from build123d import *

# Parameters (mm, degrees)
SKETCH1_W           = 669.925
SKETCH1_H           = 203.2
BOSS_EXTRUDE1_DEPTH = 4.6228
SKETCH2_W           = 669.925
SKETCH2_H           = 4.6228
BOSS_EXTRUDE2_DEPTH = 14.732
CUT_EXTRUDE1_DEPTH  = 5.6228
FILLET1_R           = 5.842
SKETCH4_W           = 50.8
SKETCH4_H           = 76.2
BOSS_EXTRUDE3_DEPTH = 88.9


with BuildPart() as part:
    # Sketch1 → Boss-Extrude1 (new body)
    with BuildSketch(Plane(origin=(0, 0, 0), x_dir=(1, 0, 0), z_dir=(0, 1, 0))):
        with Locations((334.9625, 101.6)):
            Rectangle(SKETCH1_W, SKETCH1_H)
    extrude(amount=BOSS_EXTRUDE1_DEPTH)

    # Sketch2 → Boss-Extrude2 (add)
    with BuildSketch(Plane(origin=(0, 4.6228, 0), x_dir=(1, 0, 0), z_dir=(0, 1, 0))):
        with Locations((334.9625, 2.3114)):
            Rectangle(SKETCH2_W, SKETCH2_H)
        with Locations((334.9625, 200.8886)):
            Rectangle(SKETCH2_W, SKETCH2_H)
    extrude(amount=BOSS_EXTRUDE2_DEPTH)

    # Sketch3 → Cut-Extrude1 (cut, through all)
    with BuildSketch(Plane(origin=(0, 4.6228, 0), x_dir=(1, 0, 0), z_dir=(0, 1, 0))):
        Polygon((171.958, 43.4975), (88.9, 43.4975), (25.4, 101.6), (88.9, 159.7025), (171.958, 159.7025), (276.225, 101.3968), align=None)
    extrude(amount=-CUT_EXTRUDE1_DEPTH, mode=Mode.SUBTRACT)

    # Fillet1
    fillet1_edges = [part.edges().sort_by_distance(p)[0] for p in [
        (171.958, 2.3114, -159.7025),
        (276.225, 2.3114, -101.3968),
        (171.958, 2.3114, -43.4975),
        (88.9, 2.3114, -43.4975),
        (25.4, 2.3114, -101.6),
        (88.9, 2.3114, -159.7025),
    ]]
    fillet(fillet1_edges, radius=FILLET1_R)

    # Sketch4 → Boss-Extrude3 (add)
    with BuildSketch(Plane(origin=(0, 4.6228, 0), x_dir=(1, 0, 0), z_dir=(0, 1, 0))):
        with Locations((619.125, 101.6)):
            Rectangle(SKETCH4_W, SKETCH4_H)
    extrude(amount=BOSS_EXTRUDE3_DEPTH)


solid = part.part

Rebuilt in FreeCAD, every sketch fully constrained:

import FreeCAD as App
import Part
import Sketcher
from FreeCAD import Vector
Q = App.Units.Quantity


def edges_at(feature, points):
    """Names of the edges that pass closest to the given points."""
    edges = feature.Shape.Edges
    near = lambda p: min(range(len(edges)), key=lambda i: edges[i].distToShape(Part.Vertex(*p))[0])
    return sorted({f"Edge{near(p) + 1}" for p in points})

doc = App.newDocument("Part")
params = doc.addObject("Spreadsheet::Sheet", "Params")
for row, (alias, value) in enumerate([
    ("sketch1_height", "8 in"),
    ("sketch1_width", "26.375 in"),
    ("pad1_length", "0.182 in"),
    ("sketch2_width", "26.375 in"),
    ("sketch2_height", "0.182 in"),
    ("pad2_length", "0.58 in"),
    ("sketch3_width", "3.27 in"),
    ("fillet_radius", "0.23 in"),
    ("sketch4_width", "2 in"),
    ("sketch4_height", "3 in"),
    ("pad3_length", "3.5 in"),
], start=1):
    params.set(f"A{row}", alias)
    params.set(f"B{row}", "=" + value)
    params.setAlias(f"B{row}", alias)

body = doc.addObject("PartDesign::Body", "Body")

# Sketch on XZ plane
sketch1 = body.newObject("Sketcher::SketchObject", "Sketch")
sketch1.AttachmentSupport = (doc.getObject("XZ_Plane"), [""])
sketch1.MapMode = "FlatFace"
sketch1.addGeometry(Part.LineSegment(Vector(0, -203, 0), Vector(0, 0, 0)), False)
sketch1.addGeometry(Part.LineSegment(Vector(0, 0, 0), Vector(670, 0, 0)), False)
sketch1.addGeometry(Part.LineSegment(Vector(670, 0, 0), Vector(670, -203, 0)), False)
sketch1.addGeometry(Part.LineSegment(Vector(670, -203, 0), Vector(0, -203, 0)), False)
sketch1.addConstraint(Sketcher.Constraint("Coincident", 0, 2, 1, 1))
sketch1.addConstraint(Sketcher.Constraint("Coincident", 1, 2, 2, 1))
sketch1.addConstraint(Sketcher.Constraint("Coincident", 2, 2, 3, 1))
sketch1.addConstraint(Sketcher.Constraint("Coincident", 3, 2, 0, 1))
sketch1.addConstraint(Sketcher.Constraint("Vertical", 0))
sketch1.addConstraint(Sketcher.Constraint("Horizontal", 1))
sketch1.addConstraint(Sketcher.Constraint("Vertical", 2))
sketch1.addConstraint(Sketcher.Constraint("Horizontal", 3))
sketch1.addConstraint(Sketcher.Constraint("Coincident", 0, 2, -1, 1))
sketch1.addConstraint(Sketcher.Constraint("DistanceY", 0, 1, 0, 2, Q("8 in")))
sketch1.addConstraint(Sketcher.Constraint("DistanceX", 1, 1, 1, 2, Q("26.375 in")))
sketch1.setExpression("Constraints[9]", "Params.sketch1_height")
sketch1.setExpression("Constraints[10]", "Params.sketch1_width")
pad1 = body.newObject("PartDesign::Pad", "Pad")
pad1.Profile = sketch1
pad1.setExpression("Length", "Params.pad1_length")
pad1.Reversed = True

# Sketch on XZ plane
sketch2 = body.newObject("Sketcher::SketchObject", "Sketch001")
sketch2.AttachmentSupport = (doc.getObject("XZ_Plane"), [""])
sketch2.MapMode = "FlatFace"
sketch2.AttachmentOffset = App.Placement(Vector(0, 0, -0.182 * 25.4), App.Rotation())
sketch2.addGeometry(Part.LineSegment(Vector(0, -4.6, 0), Vector(0, 0, 0)), False)
sketch2.addGeometry(Part.LineSegment(Vector(0, 0, 0), Vector(669.9, 0, 0)), False)
sketch2.addGeometry(Part.LineSegment(Vector(669.9, 0, 0), Vector(669.9, -4.6, 0)), False)
sketch2.addGeometry(Part.LineSegment(Vector(669.9, -4.6, 0), Vector(0, -4.6, 0)), False)
sketch2.addGeometry(Part.LineSegment(Vector(0, -203.2, 0), Vector(0, -198.6, 0)), False)
sketch2.addGeometry(Part.LineSegment(Vector(0, -198.6, 0), Vector(669.9, -198.6, 0)), False)
sketch2.addGeometry(Part.LineSegment(Vector(669.9, -198.6, 0), Vector(669.9, -203.2, 0)), False)
sketch2.addGeometry(Part.LineSegment(Vector(669.9, -203.2, 0), Vector(0, -203.2, 0)), False)
sketch2.addConstraint(Sketcher.Constraint("Coincident", 0, 2, 1, 1))
sketch2.addConstraint(Sketcher.Constraint("Coincident", 1, 2, 2, 1))
sketch2.addConstraint(Sketcher.Constraint("Coincident", 2, 2, 3, 1))
sketch2.addConstraint(Sketcher.Constraint("Coincident", 3, 2, 0, 1))
sketch2.addConstraint(Sketcher.Constraint("Coincident", 4, 2, 5, 1))
sketch2.addConstraint(Sketcher.Constraint("Coincident", 5, 2, 6, 1))
sketch2.addConstraint(Sketcher.Constraint("Coincident", 6, 2, 7, 1))
sketch2.addConstraint(Sketcher.Constraint("Coincident", 7, 2, 4, 1))
sketch2.addConstraint(Sketcher.Constraint("Vertical", 0))
sketch2.addConstraint(Sketcher.Constraint("Horizontal", 1))
sketch2.addConstraint(Sketcher.Constraint("Vertical", 2))
sketch2.addConstraint(Sketcher.Constraint("Horizontal", 3))
sketch2.addConstraint(Sketcher.Constraint("Vertical", 4))
sketch2.addConstraint(Sketcher.Constraint("Horizontal", 5))
sketch2.addConstraint(Sketcher.Constraint("Vertical", 6))
sketch2.addConstraint(Sketcher.Constraint("Horizontal", 7))
sketch2.addConstraint(Sketcher.Constraint("Coincident", 0, 2, -1, 1))
sketch2.addConstraint(Sketcher.Constraint("PointOnObject", 4, 2, -2))
sketch2.addConstraint(Sketcher.Constraint("Vertical", 2, 2, 5, 2))
sketch2.addConstraint(Sketcher.Constraint("Equal", 2, 4))
sketch2.addConstraint(Sketcher.Constraint("DistanceY", 6, 2, -1, 1, Q("8 in")))
sketch2.addConstraint(Sketcher.Constraint("DistanceX", 1, 1, 1, 2, Q("26.375 in")))
sketch2.addConstraint(Sketcher.Constraint("DistanceY", 0, 1, 0, 2, Q("0.182 in")))
sketch2.setExpression("Constraints[21]", "Params.sketch2_width")
sketch2.setExpression("Constraints[22]", "Params.sketch2_height")
pad2 = body.newObject("PartDesign::Pad", "Pad001")
pad2.Profile = sketch2
pad2.setExpression("Length", "Params.pad2_length")
pad2.Reversed = True

# Sketch on XZ plane
sketch3 = body.newObject("Sketcher::SketchObject", "Sketch002")
sketch3.AttachmentSupport = (doc.getObject("XZ_Plane"), [""])
sketch3.MapMode = "FlatFace"
sketch3.AttachmentOffset = App.Placement(Vector(0, 0, -0.182 * 25.4), App.Rotation())
sketch3.addGeometry(Part.LineSegment(Vector(89, -43, 0), Vector(172, -43, 0)), False)
sketch3.addGeometry(Part.LineSegment(Vector(172, -43, 0), Vector(276, -101, 0)), False)
sketch3.addGeometry(Part.LineSegment(Vector(276, -101, 0), Vector(172, -160, 0)), False)
sketch3.addGeometry(Part.LineSegment(Vector(172, -160, 0), Vector(89, -160, 0)), False)
sketch3.addGeometry(Part.LineSegment(Vector(89, -160, 0), Vector(25, -102, 0)), False)
sketch3.addGeometry(Part.LineSegment(Vector(25, -102, 0), Vector(89, -43, 0)), False)
sketch3.addConstraint(Sketcher.Constraint("Coincident", 0, 2, 1, 1))
sketch3.addConstraint(Sketcher.Constraint("Coincident", 1, 2, 2, 1))
sketch3.addConstraint(Sketcher.Constraint("Coincident", 2, 2, 3, 1))
sketch3.addConstraint(Sketcher.Constraint("Coincident", 3, 2, 4, 1))
sketch3.addConstraint(Sketcher.Constraint("Coincident", 4, 2, 5, 1))
sketch3.addConstraint(Sketcher.Constraint("Coincident", 5, 2, 0, 1))
sketch3.addConstraint(Sketcher.Constraint("Horizontal", 0))
sketch3.addConstraint(Sketcher.Constraint("Horizontal", 3))
sketch3.addConstraint(Sketcher.Constraint("Vertical", 0, 2, 2, 2))
sketch3.addConstraint(Sketcher.Constraint("Vertical", 3, 2, 5, 2))
sketch3.addConstraint(Sketcher.Constraint("Equal", 4, 5))
sketch3.addConstraint(Sketcher.Constraint("DistanceX", -1, 1, 4, 2, Q("1 in")))
sketch3.addConstraint(Sketcher.Constraint("DistanceY", 4, 2, -1, 1, Q("4 in")))
sketch3.addConstraint(Sketcher.Constraint("DistanceX", 0, 1, 0, 2, Q("3.27 in")))
sketch3.addConstraint(Sketcher.Constraint("DistanceX", -1, 1, 3, 2, Q("3.5 in")))
sketch3.addConstraint(Sketcher.Constraint("DistanceX", -1, 1, 1, 2, Q("10.875 in")))
sketch3.addConstraint(Sketcher.Constraint("DistanceY", 1, 2, -1, 1, Q("3.992 in")))
sketch3.addConstraint(Sketcher.Constraint("DistanceY", 2, 2, 0, 2, Q("4.575 in")))
sketch3.setExpression("Constraints[13]", "Params.sketch3_width")
pocket1 = body.newObject("PartDesign::Pocket", "Pocket")
pocket1.Profile = sketch3
pocket1.Type = "ThroughAll"
pocket1.Reversed = True
doc.recompute()

fillet = body.newObject("PartDesign::Fillet", "Fillet")
fillet.Base = (pocket1, edges_at(pocket1, [
    (171.958, 2.311, -159.702),
    (276.225, 2.311, -101.397),
    (171.958, 2.311, -43.498),
    (88.9, 2.311, -43.498),
    (25.4, 2.311, -101.6),
    (88.9, 2.311, -159.702),
]))
fillet.setExpression("Radius", "Params.fillet_radius")

# Sketch on XZ plane
sketch4 = body.newObject("Sketcher::SketchObject", "Sketch003")
sketch4.AttachmentSupport = (doc.getObject("XZ_Plane"), [""])
sketch4.MapMode = "FlatFace"
sketch4.AttachmentOffset = App.Placement(Vector(0, 0, -0.182 * 25.4), App.Rotation())
sketch4.addGeometry(Part.LineSegment(Vector(594, -140, 0), Vector(594, -64, 0)), False)
sketch4.addGeometry(Part.LineSegment(Vector(594, -64, 0), Vector(645, -64, 0)), False)
sketch4.addGeometry(Part.LineSegment(Vector(645, -64, 0), Vector(645, -140, 0)), False)
sketch4.addGeometry(Part.LineSegment(Vector(645, -140, 0), Vector(594, -140, 0)), False)
sketch4.addConstraint(Sketcher.Constraint("Coincident", 0, 2, 1, 1))
sketch4.addConstraint(Sketcher.Constraint("Coincident", 1, 2, 2, 1))
sketch4.addConstraint(Sketcher.Constraint("Coincident", 2, 2, 3, 1))
sketch4.addConstraint(Sketcher.Constraint("Coincident", 3, 2, 0, 1))
sketch4.addConstraint(Sketcher.Constraint("Vertical", 0))
sketch4.addConstraint(Sketcher.Constraint("Horizontal", 1))
sketch4.addConstraint(Sketcher.Constraint("Vertical", 2))
sketch4.addConstraint(Sketcher.Constraint("Horizontal", 3))
sketch4.addConstraint(Sketcher.Constraint("DistanceX", 1, 1, 1, 2, Q("2 in")))
sketch4.addConstraint(Sketcher.Constraint("DistanceY", 0, 1, 0, 2, Q("3 in")))
sketch4.addConstraint(Sketcher.Constraint("DistanceY", 0, 2, -1, 1, Q("2.5 in")))
sketch4.addConstraint(Sketcher.Constraint("DistanceX", -1, 1, 0, 2, Q("23.375 in")))
sketch4.setExpression("Constraints[8]", "Params.sketch4_width")
sketch4.setExpression("Constraints[9]", "Params.sketch4_height")
pad3 = body.newObject("PartDesign::Pad", "Pad002")
pad3.Profile = sketch4
pad3.setExpression("Length", "Params.pad3_length")
pad3.Reversed = True

doc.recompute()
